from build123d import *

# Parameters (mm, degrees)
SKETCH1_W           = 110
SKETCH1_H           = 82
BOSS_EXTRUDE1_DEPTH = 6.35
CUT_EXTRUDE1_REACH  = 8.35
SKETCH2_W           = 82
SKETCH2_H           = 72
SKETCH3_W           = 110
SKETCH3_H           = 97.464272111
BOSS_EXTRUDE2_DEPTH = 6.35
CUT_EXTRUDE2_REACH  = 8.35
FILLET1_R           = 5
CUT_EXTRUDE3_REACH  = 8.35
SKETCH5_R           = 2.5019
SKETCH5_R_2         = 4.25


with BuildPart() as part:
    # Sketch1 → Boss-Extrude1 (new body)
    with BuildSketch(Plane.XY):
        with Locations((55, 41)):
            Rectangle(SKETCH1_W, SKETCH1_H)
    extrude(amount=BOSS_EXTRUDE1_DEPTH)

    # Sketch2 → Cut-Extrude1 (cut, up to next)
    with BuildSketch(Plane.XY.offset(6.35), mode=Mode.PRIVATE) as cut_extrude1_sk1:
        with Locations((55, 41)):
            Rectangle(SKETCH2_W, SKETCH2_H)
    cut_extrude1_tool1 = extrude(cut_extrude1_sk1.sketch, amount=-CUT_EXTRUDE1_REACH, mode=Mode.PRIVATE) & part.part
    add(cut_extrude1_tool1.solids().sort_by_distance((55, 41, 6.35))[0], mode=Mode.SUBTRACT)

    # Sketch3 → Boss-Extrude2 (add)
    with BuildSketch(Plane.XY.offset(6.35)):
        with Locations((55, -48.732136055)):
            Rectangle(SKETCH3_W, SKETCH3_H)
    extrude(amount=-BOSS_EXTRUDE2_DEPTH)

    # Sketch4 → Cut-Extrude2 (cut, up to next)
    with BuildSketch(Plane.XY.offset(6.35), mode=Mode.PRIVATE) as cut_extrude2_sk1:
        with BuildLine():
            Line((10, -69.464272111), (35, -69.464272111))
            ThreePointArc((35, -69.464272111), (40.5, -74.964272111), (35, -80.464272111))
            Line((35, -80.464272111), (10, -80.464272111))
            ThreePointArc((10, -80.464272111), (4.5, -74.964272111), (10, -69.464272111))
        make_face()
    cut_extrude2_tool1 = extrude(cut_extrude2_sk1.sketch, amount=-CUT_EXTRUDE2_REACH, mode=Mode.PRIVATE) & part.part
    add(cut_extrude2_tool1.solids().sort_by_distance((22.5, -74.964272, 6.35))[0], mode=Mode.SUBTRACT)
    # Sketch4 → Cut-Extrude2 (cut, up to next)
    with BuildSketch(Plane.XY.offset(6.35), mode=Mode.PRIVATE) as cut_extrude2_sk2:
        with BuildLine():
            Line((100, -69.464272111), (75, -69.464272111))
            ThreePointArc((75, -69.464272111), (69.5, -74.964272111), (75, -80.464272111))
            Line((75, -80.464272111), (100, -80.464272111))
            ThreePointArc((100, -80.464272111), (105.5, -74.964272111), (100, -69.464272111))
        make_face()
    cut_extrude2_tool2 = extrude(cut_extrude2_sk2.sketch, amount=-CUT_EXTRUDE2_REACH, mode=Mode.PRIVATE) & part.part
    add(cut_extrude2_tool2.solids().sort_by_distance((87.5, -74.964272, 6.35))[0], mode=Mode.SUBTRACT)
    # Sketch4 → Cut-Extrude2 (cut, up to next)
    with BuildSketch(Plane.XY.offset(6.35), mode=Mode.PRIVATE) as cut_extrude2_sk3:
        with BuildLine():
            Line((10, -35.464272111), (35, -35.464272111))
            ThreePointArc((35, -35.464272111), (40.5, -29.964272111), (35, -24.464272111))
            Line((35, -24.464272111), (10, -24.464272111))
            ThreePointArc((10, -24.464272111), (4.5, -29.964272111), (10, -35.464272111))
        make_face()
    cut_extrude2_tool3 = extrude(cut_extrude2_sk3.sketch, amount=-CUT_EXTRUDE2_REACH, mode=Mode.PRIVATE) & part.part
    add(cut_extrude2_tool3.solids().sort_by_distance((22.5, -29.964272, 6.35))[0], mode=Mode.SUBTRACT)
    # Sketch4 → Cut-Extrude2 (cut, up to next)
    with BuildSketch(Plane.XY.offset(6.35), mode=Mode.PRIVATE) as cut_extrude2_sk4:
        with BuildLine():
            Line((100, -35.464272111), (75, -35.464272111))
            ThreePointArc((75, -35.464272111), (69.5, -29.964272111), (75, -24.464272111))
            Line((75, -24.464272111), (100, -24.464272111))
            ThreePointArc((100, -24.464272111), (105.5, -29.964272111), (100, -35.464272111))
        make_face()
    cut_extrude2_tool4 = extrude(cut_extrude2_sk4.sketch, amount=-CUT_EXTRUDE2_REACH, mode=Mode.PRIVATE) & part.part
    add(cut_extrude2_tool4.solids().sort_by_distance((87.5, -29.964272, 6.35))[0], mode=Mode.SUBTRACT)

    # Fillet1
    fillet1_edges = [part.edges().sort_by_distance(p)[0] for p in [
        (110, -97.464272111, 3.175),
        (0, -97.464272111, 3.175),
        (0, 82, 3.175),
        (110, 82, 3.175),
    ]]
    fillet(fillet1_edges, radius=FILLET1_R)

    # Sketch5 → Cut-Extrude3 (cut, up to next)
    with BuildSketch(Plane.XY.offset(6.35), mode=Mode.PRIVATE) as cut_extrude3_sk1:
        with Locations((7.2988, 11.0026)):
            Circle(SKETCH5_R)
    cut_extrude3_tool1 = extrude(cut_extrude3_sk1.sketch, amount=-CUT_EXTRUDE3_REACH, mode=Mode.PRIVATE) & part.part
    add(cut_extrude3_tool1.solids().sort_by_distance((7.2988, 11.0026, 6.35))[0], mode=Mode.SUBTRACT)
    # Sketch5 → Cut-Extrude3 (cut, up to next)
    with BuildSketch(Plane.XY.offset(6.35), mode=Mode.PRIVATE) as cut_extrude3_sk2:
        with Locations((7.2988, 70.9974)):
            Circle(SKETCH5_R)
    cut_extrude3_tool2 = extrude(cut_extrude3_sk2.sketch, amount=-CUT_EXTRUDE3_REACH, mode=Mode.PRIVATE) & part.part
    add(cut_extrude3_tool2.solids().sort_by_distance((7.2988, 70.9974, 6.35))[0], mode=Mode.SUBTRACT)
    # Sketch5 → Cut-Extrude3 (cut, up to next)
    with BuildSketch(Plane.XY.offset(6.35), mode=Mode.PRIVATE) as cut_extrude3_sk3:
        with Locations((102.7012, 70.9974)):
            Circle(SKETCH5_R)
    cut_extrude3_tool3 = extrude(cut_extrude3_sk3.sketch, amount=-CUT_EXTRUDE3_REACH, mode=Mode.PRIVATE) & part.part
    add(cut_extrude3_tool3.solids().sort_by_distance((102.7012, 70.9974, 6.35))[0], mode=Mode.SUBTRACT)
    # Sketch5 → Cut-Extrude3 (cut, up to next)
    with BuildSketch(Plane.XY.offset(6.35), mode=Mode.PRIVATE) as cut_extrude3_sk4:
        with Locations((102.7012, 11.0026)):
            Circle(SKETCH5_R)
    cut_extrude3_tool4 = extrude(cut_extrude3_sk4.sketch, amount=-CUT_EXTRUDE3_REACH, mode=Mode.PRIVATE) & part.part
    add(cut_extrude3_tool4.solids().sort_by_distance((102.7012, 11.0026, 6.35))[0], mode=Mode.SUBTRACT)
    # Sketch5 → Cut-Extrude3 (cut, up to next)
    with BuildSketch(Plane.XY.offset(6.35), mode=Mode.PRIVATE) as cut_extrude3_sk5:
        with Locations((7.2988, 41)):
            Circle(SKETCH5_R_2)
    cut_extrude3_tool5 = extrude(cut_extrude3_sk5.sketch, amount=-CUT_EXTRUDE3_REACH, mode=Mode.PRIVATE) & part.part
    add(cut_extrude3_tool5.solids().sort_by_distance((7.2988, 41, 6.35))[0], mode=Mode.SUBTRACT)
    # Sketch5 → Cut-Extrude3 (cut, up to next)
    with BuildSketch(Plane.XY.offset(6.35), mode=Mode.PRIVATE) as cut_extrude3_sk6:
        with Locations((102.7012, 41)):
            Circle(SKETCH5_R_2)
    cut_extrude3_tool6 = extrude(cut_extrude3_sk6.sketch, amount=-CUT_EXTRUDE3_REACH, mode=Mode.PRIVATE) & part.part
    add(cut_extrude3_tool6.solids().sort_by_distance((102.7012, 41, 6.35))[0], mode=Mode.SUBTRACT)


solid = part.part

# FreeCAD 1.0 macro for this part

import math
import FreeCAD as App
import Part
import Sketcher
from FreeCAD import Vector
Q = App.Units.Quantity


def edges_at(feature, points):
    """Names of the edges that pass closest to the given points."""
    edges = feature.Shape.Edges
    near = lambda p: min(range(len(edges)), key=lambda i: edges[i].distToShape(Part.Vertex(*p))[0])
    return sorted({f"Edge{near(p) + 1}" for p in points})

doc = App.newDocument("Part")
params = doc.addObject("Spreadsheet::Sheet", "Params")
for row, (alias, value) in enumerate([
    ("sketch1_width", "110 mm"),
    ("sketch1_height", "82 mm"),
    ("pad1_length", "6.35 mm"),
    ("sketch2_width", "82 mm"),
    ("sketch2_height", "72 mm"),
    ("sketch3_width", "110 mm"),
    ("pad2_length", "6.35 mm"),
    ("sketch4_radius", "5.5 mm"),
    ("sketch4_width", "25 mm"),
    ("sketch5_radius", "5.5 mm"),
    ("sketch5_width", "25 mm"),
    ("sketch6_radius", "5.5 mm"),
    ("sketch6_width", "25 mm"),
    ("sketch7_radius", "5.5 mm"),
    ("sketch7_width", "25 mm"),
    ("fillet_radius", "5 mm"),
    ("sketch12_diameter", "8.5 mm"),
    ("sketch13_diameter", "8.5 mm"),
], start=1):
    params.set(f"A{row}", alias)
    params.set(f"B{row}", "=" + value)
    params.setAlias(f"B{row}", alias)

body = doc.addObject("PartDesign::Body", "Body")

sketch1 = body.newObject("Sketcher::SketchObject", "Sketch")
sketch1.AttachmentSupport = (doc.getObject("XY_Plane"), [""])
sketch1.MapMode = "FlatFace"
sketch1.addGeometry(Part.LineSegment(Vector(0, 82, 0), Vector(0, 0, 0)), False)
sketch1.addGeometry(Part.LineSegment(Vector(0, 0, 0), Vector(110, 0, 0)), False)
sketch1.addGeometry(Part.LineSegment(Vector(110, 0, 0), Vector(110, 82, 0)), False)
sketch1.addGeometry(Part.LineSegment(Vector(110, 82, 0), Vector(0, 82, 0)), False)
sketch1.addConstraint(Sketcher.Constraint("Coincident", 0, 2, 1, 1))
sketch1.addConstraint(Sketcher.Constraint("Coincident", 1, 2, 2, 1))
sketch1.addConstraint(Sketcher.Constraint("Coincident", 2, 2, 3, 1))
sketch1.addConstraint(Sketcher.Constraint("Coincident", 3, 2, 0, 1))
sketch1.addConstraint(Sketcher.Constraint("Vertical", 0))
sketch1.addConstraint(Sketcher.Constraint("Horizontal", 1))
sketch1.addConstraint(Sketcher.Constraint("Vertical", 2))
sketch1.addConstraint(Sketcher.Constraint("Horizontal", 3))
sketch1.addConstraint(Sketcher.Constraint("Coincident", 0, 2, -1, 1))
sketch1.addConstraint(Sketcher.Constraint("DistanceX", 1, 1, 1, 2, Q("110 mm")))
sketch1.addConstraint(Sketcher.Constraint("DistanceY", 0, 2, 0, 1, Q("82 mm")))
sketch1.setExpression("Constraints[9]", "Params.sketch1_width")
sketch1.setExpression("Constraints[10]", "Params.sketch1_height")
pad1 = body.newObject("PartDesign::Pad", "Pad")
pad1.Profile = sketch1
pad1.setExpression("Length", "Params.pad1_length")

sketch2 = body.newObject("Sketcher::SketchObject", "Sketch001")
sketch2.AttachmentSupport = (doc.getObject("XY_Plane"), [""])
sketch2.MapMode = "FlatFace"
sketch2.AttachmentOffset = App.Placement(Vector(0, 0, 6.35), App.Rotation())
sketch2.addGeometry(Part.LineSegment(Vector(14, 77, 0), Vector(14, 5, 0)), False)
sketch2.addGeometry(Part.LineSegment(Vector(14, 5, 0), Vector(96, 5, 0)), False)
sketch2.addGeometry(Part.LineSegment(Vector(96, 5, 0), Vector(96, 77, 0)), False)
sketch2.addGeometry(Part.LineSegment(Vector(96, 77, 0), Vector(14, 77, 0)), False)
sketch2.addConstraint(Sketcher.Constraint("Coincident", 0, 2, 1, 1))
sketch2.addConstraint(Sketcher.Constraint("Coincident", 1, 2, 2, 1))
sketch2.addConstraint(Sketcher.Constraint("Coincident", 2, 2, 3, 1))
sketch2.addConstraint(Sketcher.Constraint("Coincident", 3, 2, 0, 1))
sketch2.addConstraint(Sketcher.Constraint("Vertical", 0))
sketch2.addConstraint(Sketcher.Constraint("Horizontal", 1))
sketch2.addConstraint(Sketcher.Constraint("Vertical", 2))
sketch2.addConstraint(Sketcher.Constraint("Horizontal", 3))
sketch2.addConstraint(Sketcher.Constraint("DistanceX", 1, 1, 1, 2, Q("82 mm")))
sketch2.addConstraint(Sketcher.Constraint("DistanceY", 0, 2, 0, 1, Q("72 mm")))
sketch2.addConstraint(Sketcher.Constraint("DistanceX", -1, 1, 0, 2, Q("14 mm")))
sketch2.addConstraint(Sketcher.Constraint("DistanceY", -1, 1, 0, 2, Q("5 mm")))
sketch2.setExpression("Constraints[8]", "Params.sketch2_width")
sketch2.setExpression("Constraints[9]", "Params.sketch2_height")
pocket1 = body.newObject("PartDesign::Pocket", "Pocket")
pocket1.Profile = sketch2
pocket1.Type = "UpToFirst"

sketch3 = body.newObject("Sketcher::SketchObject", "Sketch002")
sketch3.AttachmentSupport = (doc.getObject("XY_Plane"), [""])
sketch3.MapMode = "FlatFace"
sketch3.AttachmentOffset = App.Placement(Vector(0, 0, 6.35), App.Rotation())
sketch3.addGeometry(Part.LineSegment(Vector(0, 0, 0), Vector(0, -97, 0)), False)
sketch3.addGeometry(Part.LineSegment(Vector(0, -97, 0), Vector(110, -97, 0)), False)
sketch3.addGeometry(Part.LineSegment(Vector(110, -97, 0), Vector(110, 0, 0)), False)
sketch3.addGeometry(Part.LineSegment(Vector(110, 0, 0), Vector(0, 0, 0)), False)
sketch3.addConstraint(Sketcher.Constraint("Coincident", 0, 2, 1, 1))
sketch3.addConstraint(Sketcher.Constraint("Coincident", 1, 2, 2, 1))
sketch3.addConstraint(Sketcher.Constraint("Coincident", 2, 2, 3, 1))
sketch3.addConstraint(Sketcher.Constraint("Coincident", 3, 2, 0, 1))
sketch3.addConstraint(Sketcher.Constraint("Vertical", 0))
sketch3.addConstraint(Sketcher.Constraint("Horizontal", 1))
sketch3.addConstraint(Sketcher.Constraint("Vertical", 2))
sketch3.addConstraint(Sketcher.Constraint("Horizontal", 3))
sketch3.addConstraint(Sketcher.Constraint("Coincident", 3, 2, -1, 1))
sketch3.addConstraint(Sketcher.Constraint("DistanceX", 1, 1, 1, 2, Q("110 mm")))
sketch3.addConstraint(Sketcher.Constraint("DistanceY", 0, 2, 0, 1, Q("97.464272 mm")))
sketch3.setExpression("Constraints[9]", "Params.sketch3_width")
pad2 = body.newObject("PartDesign::Pad", "Pad001")
pad2.Profile = sketch3
pad2.setExpression("Length", "Params.pad2_length")
pad2.Reversed = True

sketch4 = body.newObject("Sketcher::SketchObject", "Sketch003")
sketch4.AttachmentSupport = (doc.getObject("XY_Plane"), [""])
sketch4.MapMode = "FlatFace"
sketch4.AttachmentOffset = App.Placement(Vector(0, 0, 6.35), App.Rotation())
sketch4.addGeometry(Part.LineSegment(Vector(35, -69, 0), Vector(10, -69, 0)), False)
sketch4.addGeometry(Part.ArcOfCircle(Part.Circle(Vector(10, -75, 0), Vector(0, 0, 1), 6), math.radians(90), math.radians(270)), False)
sketch4.addGeometry(Part.LineSegment(Vector(10, -80, 0), Vector(35, -80, 0)), False)
sketch4.addGeometry(Part.ArcOfCircle(Part.Circle(Vector(35, -75, 0), Vector(0, 0, 1), 6), math.radians(-90), math.radians(90)), False)
sketch4.addConstraint(Sketcher.Constraint("Tangent", 0, 2, 1, 1))
sketch4.addConstraint(Sketcher.Constraint("Tangent", 1, 2, 2, 1))
sketch4.addConstraint(Sketcher.Constraint("Tangent", 2, 2, 3, 1))
sketch4.addConstraint(Sketcher.Constraint("Tangent", 3, 2, 0, 1))
sketch4.addConstraint(Sketcher.Constraint("Horizontal", 0))
sketch4.addConstraint(Sketcher.Constraint("Horizontal", 2))
sketch4.addConstraint(Sketcher.Constraint("Radius", 1, Q("5.5 mm")))
sketch4.addConstraint(Sketcher.Constraint("DistanceX", 0, 2, 0, 1, Q("25 mm")))
sketch4.addConstraint(Sketcher.Constraint("DistanceX", -1, 1, 1, 3, Q("10 mm")))
sketch4.addConstraint(Sketcher.Constraint("DistanceY", 1, 3, -1, 1, Q("74.964272 mm")))
sketch4.setExpression("Constraints[6]", "Params.sketch4_radius")
sketch4.setExpression("Constraints[7]", "Params.sketch4_width")
pocket2 = body.newObject("PartDesign::Pocket", "Pocket001")
pocket2.Profile = sketch4
pocket2.Type = "UpToFirst"

sketch5 = body.newObject("Sketcher::SketchObject", "Sketch004")
sketch5.AttachmentSupport = (doc.getObject("XY_Plane"), [""])
sketch5.MapMode = "FlatFace"
sketch5.AttachmentOffset = App.Placement(Vector(0, 0, 6.35), App.Rotation())
sketch5.addGeometry(Part.LineSegment(Vector(100, -69, 0), Vector(75, -69, 0)), False)
sketch5.addGeometry(Part.ArcOfCircle(Part.Circle(Vector(75, -75, 0), Vector(0, 0, 1), 6), math.radians(90), math.radians(270)), False)
sketch5.addGeometry(Part.LineSegment(Vector(75, -80, 0), Vector(100, -80, 0)), False)
sketch5.addGeometry(Part.ArcOfCircle(Part.Circle(Vector(100, -75, 0), Vector(0, 0, 1), 6), math.radians(-90), math.radians(90)), False)
sketch5.addConstraint(Sketcher.Constraint("Tangent", 0, 2, 1, 1))
sketch5.addConstraint(Sketcher.Constraint("Tangent", 1, 2, 2, 1))
sketch5.addConstraint(Sketcher.Constraint("Tangent", 2, 2, 3, 1))
sketch5.addConstraint(Sketcher.Constraint("Tangent", 3, 2, 0, 1))
sketch5.addConstraint(Sketcher.Constraint("Horizontal", 0))
sketch5.addConstraint(Sketcher.Constraint("Horizontal", 2))
sketch5.addConstraint(Sketcher.Constraint("Radius", 1, Q("5.5 mm")))
sketch5.addConstraint(Sketcher.Constraint("DistanceX", 0, 2, 0, 1, Q("25 mm")))
sketch5.addConstraint(Sketcher.Constraint("DistanceX", -1, 1, 1, 3, Q("75 mm")))
sketch5.addConstraint(Sketcher.Constraint("DistanceY", 1, 3, -1, 1, Q("74.964272 mm")))
sketch5.setExpression("Constraints[6]", "Params.sketch5_radius")
sketch5.setExpression("Constraints[7]", "Params.sketch5_width")
pocket3 = body.newObject("PartDesign::Pocket", "Pocket002")
pocket3.Profile = sketch5
pocket3.Type = "UpToFirst"

sketch6 = body.newObject("Sketcher::SketchObject", "Sketch005")
sketch6.AttachmentSupport = (doc.getObject("XY_Plane"), [""])
sketch6.MapMode = "FlatFace"
sketch6.AttachmentOffset = App.Placement(Vector(0, 0, 6.35), App.Rotation())
sketch6.addGeometry(Part.LineSegment(Vector(10, -35, 0), Vector(35, -35, 0)), False)
sketch6.addGeometry(Part.ArcOfCircle(Part.Circle(Vector(35, -30, 0), Vector(0, 0, 1), 6), math.radians(-90), math.radians(90)), False)
sketch6.addGeometry(Part.LineSegment(Vector(35, -24, 0), Vector(10, -24, 0)), False)
sketch6.addGeometry(Part.ArcOfCircle(Part.Circle(Vector(10, -30, 0), Vector(0, 0, 1), 6), math.radians(90), math.radians(270)), False)
sketch6.addConstraint(Sketcher.Constraint("Tangent", 0, 2, 1, 1))
sketch6.addConstraint(Sketcher.Constraint("Tangent", 1, 2, 2, 1))
sketch6.addConstraint(Sketcher.Constraint("Tangent", 2, 2, 3, 1))
sketch6.addConstraint(Sketcher.Constraint("Tangent", 3, 2, 0, 1))
sketch6.addConstraint(Sketcher.Constraint("Horizontal", 0))
sketch6.addConstraint(Sketcher.Constraint("Horizontal", 2))
sketch6.addConstraint(Sketcher.Constraint("Radius", 1, Q("5.5 mm")))
sketch6.addConstraint(Sketcher.Constraint("DistanceX", 0, 1, 0, 2, Q("25 mm")))
sketch6.addConstraint(Sketcher.Constraint("DistanceX", -1, 1, 1, 3, Q("35 mm")))
sketch6.addConstraint(Sketcher.Constraint("DistanceY", 1, 3, -1, 1, Q("29.964272 mm")))
sketch6.setExpression("Constraints[6]", "Params.sketch6_radius")
sketch6.setExpression("Constraints[7]", "Params.sketch6_width")
pocket4 = body.newObject("PartDesign::Pocket", "Pocket003")
pocket4.Profile = sketch6
pocket4.Type = "UpToFirst"

sketch7 = body.newObject("Sketcher::SketchObject", "Sketch006")
sketch7.AttachmentSupport = (doc.getObject("XY_Plane"), [""])
sketch7.MapMode = "FlatFace"
sketch7.AttachmentOffset = App.Placement(Vector(0, 0, 6.35), App.Rotation())
sketch7.addGeometry(Part.LineSegment(Vector(75, -35, 0), Vector(100, -35, 0)), False)
sketch7.addGeometry(Part.ArcOfCircle(Part.Circle(Vector(100, -30, 0), Vector(0, 0, 1), 6), math.radians(-90), math.radians(90)), False)
sketch7.addGeometry(Part.LineSegment(Vector(100, -24, 0), Vector(75, -24, 0)), False)
sketch7.addGeometry(Part.ArcOfCircle(Part.Circle(Vector(75, -30, 0), Vector(0, 0, 1), 6), math.radians(90), math.radians(270)), False)
sketch7.addConstraint(Sketcher.Constraint("Tangent", 0, 2, 1, 1))
sketch7.addConstraint(Sketcher.Constraint("Tangent", 1, 2, 2, 1))
sketch7.addConstraint(Sketcher.Constraint("Tangent", 2, 2, 3, 1))
sketch7.addConstraint(Sketcher.Constraint("Tangent", 3, 2, 0, 1))
sketch7.addConstraint(Sketcher.Constraint("Horizontal", 0))
sketch7.addConstraint(Sketcher.Constraint("Horizontal", 2))
sketch7.addConstraint(Sketcher.Constraint("Radius", 1, Q("5.5 mm")))
sketch7.addConstraint(Sketcher.Constraint("DistanceX", 0, 1, 0, 2, Q("25 mm")))
sketch7.addConstraint(Sketcher.Constraint("DistanceX", -1, 1, 1, 3, Q("100 mm")))
sketch7.addConstraint(Sketcher.Constraint("DistanceY", 1, 3, -1, 1, Q("29.964272 mm")))
sketch7.setExpression("Constraints[6]", "Params.sketch7_radius")
sketch7.setExpression("Constraints[7]", "Params.sketch7_width")
pocket5 = body.newObject("PartDesign::Pocket", "Pocket004")
pocket5.Profile = sketch7
pocket5.Type = "UpToFirst"
doc.recompute()

fillet = body.newObject("PartDesign::Fillet", "Fillet")
fillet.Base = (pocket5, edges_at(pocket5, [
    (110, -97.464, 3.175),
    (0, -97.464, 3.175),
    (0, 82, 3.175),
    (110, 82, 3.175),
]))
fillet.setExpression("Radius", "Params.fillet_radius")

sketch8 = body.newObject("Sketcher::SketchObject", "Sketch007")
sketch8.AttachmentSupport = (doc.getObject("XY_Plane"), [""])
sketch8.MapMode = "FlatFace"
sketch8.AttachmentOffset = App.Placement(Vector(0, 0, 6.35), App.Rotation())
sketch8.addGeometry(Part.Circle(Vector(7.3, 11, 0), Vector(0, 0, 1), 2.5), False)
sketch8.addConstraint(Sketcher.Constraint("Diameter", 0, Q("5.0038 mm")))
sketch8.addConstraint(Sketcher.Constraint("DistanceX", -1, 1, 0, 3, Q("7.2988 mm")))
sketch8.addConstraint(Sketcher.Constraint("DistanceY", -1, 1, 0, 3, Q("11.0026 mm")))
pocket6 = body.newObject("PartDesign::Pocket", "Pocket005")
pocket6.Profile = sketch8
pocket6.Type = "UpToFirst"

sketch9 = body.newObject("Sketcher::SketchObject", "Sketch008")
sketch9.AttachmentSupport = (doc.getObject("XY_Plane"), [""])
sketch9.MapMode = "FlatFace"
sketch9.AttachmentOffset = App.Placement(Vector(0, 0, 6.35), App.Rotation())
sketch9.addGeometry(Part.Circle(Vector(7.3, 71, 0), Vector(0, 0, 1), 2.5), False)
sketch9.addConstraint(Sketcher.Constraint("Diameter", 0, Q("5.0038 mm")))
sketch9.addConstraint(Sketcher.Constraint("DistanceX", -1, 1, 0, 3, Q("7.2988 mm")))
sketch9.addConstraint(Sketcher.Constraint("DistanceY", -1, 1, 0, 3, Q("70.9974 mm")))
pocket7 = body.newObject("PartDesign::Pocket", "Pocket006")
pocket7.Profile = sketch9
pocket7.Type = "UpToFirst"

sketch10 = body.newObject("Sketcher::SketchObject", "Sketch009")
sketch10.AttachmentSupport = (doc.getObject("XY_Plane"), [""])
sketch10.MapMode = "FlatFace"
sketch10.AttachmentOffset = App.Placement(Vector(0, 0, 6.35), App.Rotation())
sketch10.addGeometry(Part.Circle(Vector(102.7, 71, 0), Vector(0, 0, 1), 2.5), False)
sketch10.addConstraint(Sketcher.Constraint("Diameter", 0, Q("5.0038 mm")))
sketch10.addConstraint(Sketcher.Constraint("DistanceX", -1, 1, 0, 3, Q("102.7012 mm")))
sketch10.addConstraint(Sketcher.Constraint("DistanceY", -1, 1, 0, 3, Q("70.9974 mm")))
pocket8 = body.newObject("PartDesign::Pocket", "Pocket007")
pocket8.Profile = sketch10
pocket8.Type = "UpToFirst"

sketch11 = body.newObject("Sketcher::SketchObject", "Sketch010")
sketch11.AttachmentSupport = (doc.getObject("XY_Plane"), [""])
sketch11.MapMode = "FlatFace"
sketch11.AttachmentOffset = App.Placement(Vector(0, 0, 6.35), App.Rotation())
sketch11.addGeometry(Part.Circle(Vector(102.7, 11, 0), Vector(0, 0, 1), 2.5), False)
sketch11.addConstraint(Sketcher.Constraint("Diameter", 0, Q("5.0038 mm")))
sketch11.addConstraint(Sketcher.Constraint("DistanceX", -1, 1, 0, 3, Q("102.7012 mm")))
sketch11.addConstraint(Sketcher.Constraint("DistanceY", -1, 1, 0, 3, Q("11.0026 mm")))
pocket9 = body.newObject("PartDesign::Pocket", "Pocket008")
pocket9.Profile = sketch11
pocket9.Type = "UpToFirst"

sketch12 = body.newObject("Sketcher::SketchObject", "Sketch011")
sketch12.AttachmentSupport = (doc.getObject("XY_Plane"), [""])
sketch12.MapMode = "FlatFace"
sketch12.AttachmentOffset = App.Placement(Vector(0, 0, 6.35), App.Rotation())
sketch12.addGeometry(Part.Circle(Vector(7.3, 41, 0), Vector(0, 0, 1), 4.2), False)
sketch12.addConstraint(Sketcher.Constraint("Diameter", 0, Q("8.5 mm")))
sketch12.addConstraint(Sketcher.Constraint("DistanceY", -1, 1, 0, 3, Q("41 mm")))
sketch12.addConstraint(Sketcher.Constraint("DistanceX", -1, 1, 0, 3, Q("7.2988 mm")))
sketch12.setExpression("Constraints[0]", "Params.sketch12_diameter")
pocket10 = body.newObject("PartDesign::Pocket", "Pocket009")
pocket10.Profile = sketch12
pocket10.Type = "UpToFirst"

sketch13 = body.newObject("Sketcher::SketchObject", "Sketch012")
sketch13.AttachmentSupport = (doc.getObject("XY_Plane"), [""])
sketch13.MapMode = "FlatFace"
sketch13.AttachmentOffset = App.Placement(Vector(0, 0, 6.35), App.Rotation())
sketch13.addGeometry(Part.Circle(Vector(102.7, 41, 0), Vector(0, 0, 1), 4.2), False)
sketch13.addConstraint(Sketcher.Constraint("Diameter", 0, Q("8.5 mm")))
sketch13.addConstraint(Sketcher.Constraint("DistanceY", -1, 1, 0, 3, Q("41 mm")))
sketch13.addConstraint(Sketcher.Constraint("DistanceX", -1, 1, 0, 3, Q("102.7012 mm")))
sketch13.setExpression("Constraints[0]", "Params.sketch13_diameter")
pocket11 = body.newObject("PartDesign::Pocket", "Pocket010")
pocket11.Profile = sketch13
pocket11.Type = "UpToFirst"

doc.recompute()
